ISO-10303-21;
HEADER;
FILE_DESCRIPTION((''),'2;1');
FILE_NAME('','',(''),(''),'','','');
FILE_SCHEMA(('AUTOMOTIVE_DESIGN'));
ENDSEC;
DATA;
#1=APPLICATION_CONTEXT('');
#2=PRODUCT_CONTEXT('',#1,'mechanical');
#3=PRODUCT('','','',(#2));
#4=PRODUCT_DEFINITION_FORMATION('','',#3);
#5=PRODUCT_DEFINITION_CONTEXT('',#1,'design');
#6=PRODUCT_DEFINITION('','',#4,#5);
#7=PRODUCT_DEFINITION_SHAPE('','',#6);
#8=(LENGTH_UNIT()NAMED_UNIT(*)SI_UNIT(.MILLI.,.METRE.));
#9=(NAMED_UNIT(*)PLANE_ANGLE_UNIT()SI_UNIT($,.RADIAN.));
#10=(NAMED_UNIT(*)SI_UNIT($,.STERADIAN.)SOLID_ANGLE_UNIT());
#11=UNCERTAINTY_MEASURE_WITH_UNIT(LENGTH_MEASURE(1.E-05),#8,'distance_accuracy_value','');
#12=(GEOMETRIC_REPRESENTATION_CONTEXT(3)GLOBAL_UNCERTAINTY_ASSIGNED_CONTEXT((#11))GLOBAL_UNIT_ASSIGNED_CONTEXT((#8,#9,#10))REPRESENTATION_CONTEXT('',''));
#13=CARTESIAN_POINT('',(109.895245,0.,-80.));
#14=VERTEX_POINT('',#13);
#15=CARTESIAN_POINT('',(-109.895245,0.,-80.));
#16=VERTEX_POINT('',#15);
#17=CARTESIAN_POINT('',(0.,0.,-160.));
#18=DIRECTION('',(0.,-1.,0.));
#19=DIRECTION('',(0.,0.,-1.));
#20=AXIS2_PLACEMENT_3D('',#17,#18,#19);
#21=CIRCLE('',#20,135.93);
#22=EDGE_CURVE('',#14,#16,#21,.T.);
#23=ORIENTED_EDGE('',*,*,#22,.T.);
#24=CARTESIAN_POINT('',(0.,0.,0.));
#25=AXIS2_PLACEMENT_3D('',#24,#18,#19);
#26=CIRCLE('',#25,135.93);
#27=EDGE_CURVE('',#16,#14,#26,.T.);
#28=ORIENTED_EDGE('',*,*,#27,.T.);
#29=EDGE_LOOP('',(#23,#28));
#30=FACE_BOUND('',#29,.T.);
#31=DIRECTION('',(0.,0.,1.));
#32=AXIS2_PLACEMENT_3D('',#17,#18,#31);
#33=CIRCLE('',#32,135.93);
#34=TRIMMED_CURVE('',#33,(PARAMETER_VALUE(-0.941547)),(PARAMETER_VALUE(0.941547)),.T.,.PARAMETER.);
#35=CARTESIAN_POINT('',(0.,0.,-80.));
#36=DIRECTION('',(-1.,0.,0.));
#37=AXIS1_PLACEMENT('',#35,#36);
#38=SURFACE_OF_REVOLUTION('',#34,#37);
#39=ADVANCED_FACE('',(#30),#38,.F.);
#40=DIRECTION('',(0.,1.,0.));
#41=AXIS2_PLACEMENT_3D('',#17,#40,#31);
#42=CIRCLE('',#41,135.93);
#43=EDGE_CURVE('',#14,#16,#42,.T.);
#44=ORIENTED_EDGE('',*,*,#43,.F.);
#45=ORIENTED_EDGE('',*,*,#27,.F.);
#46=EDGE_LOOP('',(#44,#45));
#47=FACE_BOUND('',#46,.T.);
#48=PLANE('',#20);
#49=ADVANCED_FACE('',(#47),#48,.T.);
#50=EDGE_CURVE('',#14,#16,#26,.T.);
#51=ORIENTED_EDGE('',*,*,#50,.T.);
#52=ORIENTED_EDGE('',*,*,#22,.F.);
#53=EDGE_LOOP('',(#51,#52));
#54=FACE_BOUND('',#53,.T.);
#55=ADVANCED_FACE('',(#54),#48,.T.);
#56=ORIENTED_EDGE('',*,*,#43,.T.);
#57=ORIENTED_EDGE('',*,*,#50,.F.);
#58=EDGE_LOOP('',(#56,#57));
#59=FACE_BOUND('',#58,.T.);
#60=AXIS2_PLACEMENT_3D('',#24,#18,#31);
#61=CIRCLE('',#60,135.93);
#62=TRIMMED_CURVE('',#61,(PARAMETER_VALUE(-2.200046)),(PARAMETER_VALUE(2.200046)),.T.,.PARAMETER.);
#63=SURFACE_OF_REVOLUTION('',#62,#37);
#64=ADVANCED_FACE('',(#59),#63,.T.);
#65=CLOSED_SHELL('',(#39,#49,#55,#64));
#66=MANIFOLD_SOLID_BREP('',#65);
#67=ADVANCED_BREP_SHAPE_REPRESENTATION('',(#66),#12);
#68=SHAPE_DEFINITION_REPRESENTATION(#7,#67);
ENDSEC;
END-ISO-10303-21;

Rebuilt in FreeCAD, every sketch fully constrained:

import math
import FreeCAD as App
import Part
import Sketcher

doc = App.newDocument("Part")
body = doc.addObject("PartDesign::Body", "Body")

# Sketch on XZ plane
sketch1 = doc.addObject("Sketcher::SketchObject", "Sketch")
body.addObject(sketch1)
sketch1.AttachmentSupport = (doc.XZ_Plane, [""])
sketch1.MapMode = "FlatFace"
sketch1.addGeometry([
    Part.ArcOfCircle(Part.Circle(App.Vector(0, -160, 0), App.Vector(0, 0, 1), 136), math.radians(144), math.radians(360)),
    Part.LineSegment(App.Vector(-110, -80, 0), App.Vector(110, -80, 0)),
    Part.ArcOfCircle(Part.Circle(App.Vector(0, -160, 0), App.Vector(0, 0, 1), 136), math.radians(0), math.radians(36)),
], False)
sketch1.addGeometry(Part.LineSegment(App.Vector(-110, -80, 0), App.Vector(136, -80, 0)), True)  # axis
sketch1.addConstraint([
    Sketcher.Constraint("Coincident", 0, 1, 1, 1),
    Sketcher.Constraint("Coincident", 1, 2, 2, 2),
    Sketcher.Constraint("Tangent", 2, 1, 0, 2),
    Sketcher.Constraint("Horizontal", 1),
    Sketcher.Constraint("Horizontal", 3),
    Sketcher.Constraint("Coincident", 3, 1, 0, 1),
    Sketcher.Constraint("Equal", 0, 2),
    Sketcher.Constraint("PointOnObject", 0, 3, -2),
    Sketcher.Constraint("Horizontal", 0, 3, 2, 1),
    Sketcher.Constraint("Vertical", 2, 1, 3, 2),
    Sketcher.Constraint("Radius", 0, 135.93),
    Sketcher.Constraint("DistanceY", 0, 3, -1, 1, 160.0),
    Sketcher.Constraint("DistanceY", 0, 1, -1, 1, 80.0),
])
revolution = doc.addObject("PartDesign::Revolution", "Revolution")
body.addObject(revolution)
revolution.Profile = sketch1
revolution.ReferenceAxis = (sketch1, ["Axis0"])
revolution.Angle = 180

# Sketch on XZ plane
sketch2 = doc.addObject("Sketcher::SketchObject", "Sketch001")
body.addObject(sketch2)
sketch2.AttachmentSupport = (doc.XZ_Plane, [""])
sketch2.MapMode = "FlatFace"
sketch2.addGeometry([
    Part.LineSegment(App.Vector(110, -80, 0), App.Vector(-110, -80, 0)),
    Part.ArcOfCircle(Part.Circle(App.Vector(0, 0, 0), App.Vector(0, 0, 1), 136), math.radians(-144), math.radians(-36)),
], False)
sketch2.addGeometry(Part.LineSegment(App.Vector(-110, -80, 0), App.Vector(110, -80, 0)), True)  # axis
sketch2.addConstraint([
    Sketcher.Constraint("Coincident", 0, 1, 1, 2),
    Sketcher.Constraint("Coincident", 1, 1, 0, 2),
    Sketcher.Constraint("Horizontal", 0),
    Sketcher.Constraint("Horizontal", 2),
    Sketcher.Constraint("Coincident", 1, 3, -1, 1),
    Sketcher.Constraint("Coincident", 2, 1, 1, 1),
    Sketcher.Constraint("Equal", 0, 2),
    Sketcher.Constraint("Radius", 1, 135.93),
    Sketcher.Constraint("DistanceY", 0, 1, -1, 1, 80.0),
])
groove = doc.addObject("PartDesign::Groove", "Groove")
body.addObject(groove)
groove.Profile = sketch2
groove.ReferenceAxis = (sketch2, ["Axis0"])
groove.Angle = 360

doc.recompute()
